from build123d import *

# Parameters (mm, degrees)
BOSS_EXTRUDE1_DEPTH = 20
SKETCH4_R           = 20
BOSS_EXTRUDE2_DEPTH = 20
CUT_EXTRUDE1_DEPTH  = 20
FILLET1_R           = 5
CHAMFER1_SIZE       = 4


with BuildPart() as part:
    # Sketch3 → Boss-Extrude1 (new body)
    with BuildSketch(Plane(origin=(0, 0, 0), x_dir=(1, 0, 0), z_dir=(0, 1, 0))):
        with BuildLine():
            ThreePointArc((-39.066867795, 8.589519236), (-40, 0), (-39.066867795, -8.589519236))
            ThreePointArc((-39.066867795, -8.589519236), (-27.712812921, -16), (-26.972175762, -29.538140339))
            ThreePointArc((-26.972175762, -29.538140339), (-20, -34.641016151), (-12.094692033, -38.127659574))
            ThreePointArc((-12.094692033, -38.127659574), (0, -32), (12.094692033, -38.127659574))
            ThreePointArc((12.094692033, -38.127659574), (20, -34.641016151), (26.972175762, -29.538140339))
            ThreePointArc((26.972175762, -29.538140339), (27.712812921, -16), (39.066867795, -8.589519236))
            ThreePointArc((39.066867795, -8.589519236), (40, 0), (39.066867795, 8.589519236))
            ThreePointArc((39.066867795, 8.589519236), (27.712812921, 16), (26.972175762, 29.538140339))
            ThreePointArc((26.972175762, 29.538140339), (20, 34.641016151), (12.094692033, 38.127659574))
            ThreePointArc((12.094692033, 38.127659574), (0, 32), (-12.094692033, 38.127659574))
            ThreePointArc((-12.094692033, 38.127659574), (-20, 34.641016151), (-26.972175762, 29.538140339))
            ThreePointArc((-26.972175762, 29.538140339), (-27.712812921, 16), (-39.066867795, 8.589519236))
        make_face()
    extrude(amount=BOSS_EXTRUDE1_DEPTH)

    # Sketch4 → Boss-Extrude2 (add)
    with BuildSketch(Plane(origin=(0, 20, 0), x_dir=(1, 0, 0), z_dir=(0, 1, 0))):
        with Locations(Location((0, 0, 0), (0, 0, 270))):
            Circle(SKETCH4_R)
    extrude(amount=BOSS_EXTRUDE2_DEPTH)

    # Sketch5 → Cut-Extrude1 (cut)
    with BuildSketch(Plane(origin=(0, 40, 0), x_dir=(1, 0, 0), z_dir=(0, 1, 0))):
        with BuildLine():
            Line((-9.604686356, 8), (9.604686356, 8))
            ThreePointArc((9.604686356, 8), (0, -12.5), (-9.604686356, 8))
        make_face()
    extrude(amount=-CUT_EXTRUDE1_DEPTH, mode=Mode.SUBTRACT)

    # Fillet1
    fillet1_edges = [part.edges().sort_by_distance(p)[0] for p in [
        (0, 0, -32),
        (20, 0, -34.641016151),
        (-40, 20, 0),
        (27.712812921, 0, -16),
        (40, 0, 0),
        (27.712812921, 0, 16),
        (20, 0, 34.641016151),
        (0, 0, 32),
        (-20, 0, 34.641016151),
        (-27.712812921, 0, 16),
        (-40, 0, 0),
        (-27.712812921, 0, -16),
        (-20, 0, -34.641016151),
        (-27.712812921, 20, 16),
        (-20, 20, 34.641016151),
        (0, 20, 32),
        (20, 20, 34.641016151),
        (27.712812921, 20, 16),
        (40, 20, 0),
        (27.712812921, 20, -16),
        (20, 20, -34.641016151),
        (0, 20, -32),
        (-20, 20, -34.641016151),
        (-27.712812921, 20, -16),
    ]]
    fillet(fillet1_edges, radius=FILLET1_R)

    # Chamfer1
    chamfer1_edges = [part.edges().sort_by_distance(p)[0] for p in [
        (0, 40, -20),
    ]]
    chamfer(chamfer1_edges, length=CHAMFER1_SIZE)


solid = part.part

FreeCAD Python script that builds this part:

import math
import FreeCAD as App
import Part
import Sketcher
from FreeCAD import Vector


def edges_at(feature, points):
    """Names of the edges that pass closest to the given points."""
    edges = feature.Shape.Edges
    near = lambda p: min(range(len(edges)), key=lambda i: edges[i].distToShape(Part.Vertex(*p))[0])
    return sorted({f"Edge{near(p) + 1}" for p in points})

doc = App.newDocument("Part")
params = doc.addObject("Spreadsheet::Sheet", "Params")
for row, (alias, value) in enumerate([
    ("sketch1_radius", "40 mm"),
    ("sketch1_radius2", "15 mm"),
    ("pad1_length", "20 mm"),
    ("sketch2_diameter", "40 mm"),
    ("pad2_length", "20 mm"),
    ("sketch3_radius", "12.5 mm"),
    ("pocket1_length", "20 mm"),
    ("fillet_radius", "5 mm"),
    ("chamfer_size", "4 mm"),
], start=1):
    params.set(f"A{row}", alias)
    params.set(f"B{row}", "=" + value)
    params.setAlias(f"B{row}", alias)

body = doc.addObject("PartDesign::Body", "Body")

sketch1 = body.newObject("Sketcher::SketchObject", "Sketch")
sketch1.AttachmentSupport = (doc.getObject("XZ_Plane"), [""])
sketch1.MapMode = "FlatFace"
sketch1.addGeometry([
    Part.ArcOfCircle(Part.Circle(Vector(0, 0, 0), Vector(0, 0, 1), 40), math.radians(167.599844), math.radians(192.400156)),
    Part.ArcOfCircle(Part.Circle(Vector(-40.703194, 23.5, 0), Vector(0, 0, 1), 15), math.radians(-83.737231), math.radians(23.737231)),
    Part.ArcOfCircle(Part.Circle(Vector(0, 0, 0), Vector(0, 0, 1), 40), math.radians(107.599844), math.radians(132.400156)),
    Part.ArcOfCircle(Part.Circle(Vector(0, 47, 0), Vector(0, 0, 1), 15), math.radians(-143.737231), math.radians(-36.262769)),
    Part.ArcOfCircle(Part.Circle(Vector(0, 0, 0), Vector(0, 0, 1), 40), math.radians(47.599844), math.radians(72.400156)),
    Part.ArcOfCircle(Part.Circle(Vector(40.703194, 23.5, 0), Vector(0, 0, 1), 15), math.radians(156.262769), math.radians(263.737231)),
    Part.ArcOfCircle(Part.Circle(Vector(0, 0, 0), Vector(0, 0, 1), 40), math.radians(-12.400156), math.radians(12.400156)),
    Part.ArcOfCircle(Part.Circle(Vector(40.703194, -23.5, 0), Vector(0, 0, 1), 15), math.radians(96.262769), math.radians(203.737231)),
    Part.ArcOfCircle(Part.Circle(Vector(0, 0, 0), Vector(0, 0, 1), 40), math.radians(-72.400156), math.radians(-47.599844)),
    Part.ArcOfCircle(Part.Circle(Vector(0, -47, 0), Vector(0, 0, 1), 15), math.radians(36.262769), math.radians(143.737231)),
    Part.ArcOfCircle(Part.Circle(Vector(0, 0, 0), Vector(0, 0, 1), 40), math.radians(-132.400156), math.radians(-107.599844)),
    Part.ArcOfCircle(Part.Circle(Vector(-40.703194, -23.5, 0), Vector(0, 0, 1), 15), math.radians(-23.737231), math.radians(83.737231)),
], False)
sketch1.addConstraint([
    Sketcher.Constraint("Coincident", 0, 1, 1, 1),
    Sketcher.Constraint("Coincident", 1, 2, 2, 2),
    Sketcher.Constraint("Coincident", 2, 1, 3, 1),
    Sketcher.Constraint("Coincident", 3, 2, 4, 2),
    Sketcher.Constraint("Coincident", 4, 1, 5, 1),
    Sketcher.Constraint("Coincident", 5, 2, 6, 2),
    Sketcher.Constraint("Coincident", 6, 1, 7, 1),
    Sketcher.Constraint("Coincident", 7, 2, 8, 2),
    Sketcher.Constraint("Coincident", 8, 1, 9, 1),
    Sketcher.Constraint("Coincident", 9, 2, 10, 2),
    Sketcher.Constraint("Coincident", 10, 1, 11, 1),
    Sketcher.Constraint("Coincident", 11, 2, 0, 2),
    Sketcher.Constraint("Coincident", 0, 3, -1, 1),
    Sketcher.Constraint("Coincident", 2, 3, -1, 1),
    Sketcher.Constraint("Coincident", 4, 3, -1, 1),
    Sketcher.Constraint("Coincident", 6, 3, -1, 1),
    Sketcher.Constraint("Coincident", 8, 3, -1, 1),
    Sketcher.Constraint("Coincident", 10, 3, -1, 1),
    Sketcher.Constraint("Equal", 0, 2),
    Sketcher.Constraint("Equal", 1, 3),
    Sketcher.Constraint("Equal", 2, 4),
    Sketcher.Constraint("Equal", 3, 5),
    Sketcher.Constraint("Equal", 4, 6),
    Sketcher.Constraint("Equal", 5, 7),
    Sketcher.Constraint("Equal", 6, 8),
    Sketcher.Constraint("Equal", 7, 9),
    Sketcher.Constraint("Equal", 8, 10),
    Sketcher.Constraint("Equal", 9, 11),
    Sketcher.Constraint("Symmetric", 1, 3, 7, 3, -1, 1),
    Sketcher.Constraint("Symmetric", 3, 3, 9, 3, -1, 1),
    Sketcher.Constraint("Symmetric", 5, 3, 11, 3, -1, 1),
    Sketcher.Constraint("Symmetric", 1, 3, 5, 3, -2),
    Sketcher.Constraint("PointOnObject", 3, 3, -2),
    Sketcher.Constraint("Radius", 0, 40.0),
    Sketcher.Constraint("Radius", 1, 15.0),
    Sketcher.Constraint("DistanceY", -1, 1, 3, 3, 47.0),
    Sketcher.Constraint("DistanceY", 7, 3, 5, 3, 47.0),
    Sketcher.Constraint("DistanceX", 1, 3, 2, 1, 28.608502),
])
sketch1.setExpression("Constraints[33]", "Params.sketch1_radius")
sketch1.setExpression("Constraints[34]", "Params.sketch1_radius2")
pad1 = body.newObject("PartDesign::Pad", "Pad")
pad1.Profile = sketch1
pad1.setExpression("Length", "Params.pad1_length")
pad1.Reversed = True

sketch2 = body.newObject("Sketcher::SketchObject", "Sketch001")
sketch2.AttachmentSupport = (doc.getObject("XZ_Plane"), [""])
sketch2.MapMode = "FlatFace"
sketch2.AttachmentOffset = App.Placement(Vector(0, 0, -20), App.Rotation())
sketch2.addGeometry(Part.Circle(Vector(0, 0, 0), Vector(0, 0, 1), 20), False)
sketch2.addConstraint([
    Sketcher.Constraint("Coincident", 0, 3, -1, 1),
    Sketcher.Constraint("Diameter", 0, 40.0),
])
sketch2.setExpression("Constraints[1]", "Params.sketch2_diameter")
pad2 = body.newObject("PartDesign::Pad", "Pad001")
pad2.Profile = sketch2
pad2.setExpression("Length", "Params.pad2_length")
pad2.Reversed = True

sketch3 = body.newObject("Sketcher::SketchObject", "Sketch002")
sketch3.AttachmentSupport = (doc.getObject("XZ_Plane"), [""])
sketch3.MapMode = "FlatFace"
sketch3.AttachmentOffset = App.Placement(Vector(0, 0, -40), App.Rotation())
sketch3.addGeometry([
    Part.LineSegment(Vector(9.604686, -8, 0), Vector(-9.604686, -8, 0)),
    Part.ArcOfCircle(Part.Circle(Vector(0, 0, 0), Vector(0, 0, 1), 12.5), math.radians(-39.791819), math.radians(219.791819)),
], False)
sketch3.addConstraint([
    Sketcher.Constraint("Coincident", 0, 1, 1, 1),
    Sketcher.Constraint("Coincident", 1, 2, 0, 2),
    Sketcher.Constraint("Horizontal", 0),
    Sketcher.Constraint("Coincident", 1, 3, -1, 1),
    Sketcher.Constraint("Radius", 1, 12.5),
    Sketcher.Constraint("DistanceY", 0, 1, -1, 1, 8.0),
])
sketch3.setExpression("Constraints[4]", "Params.sketch3_radius")
pocket1 = body.newObject("PartDesign::Pocket", "Pocket")
pocket1.Profile = sketch3
pocket1.setExpression("Length", "Params.pocket1_length")
pocket1.Reversed = True
doc.recompute()

fillet = body.newObject("PartDesign::Fillet", "Fillet")
fillet.Base = (pocket1, edges_at(pocket1, [
    (0, 0, -32),
    (20, 0, -34.641),
    (-40, 20, 0),
    (27.713, 0, -16),
    (40, 0, 0),
    (27.713, 0, 16),
    (20, 0, 34.641),
    (0, 0, 32),
    (-20, 0, 34.641),
    (-27.713, 0, 16),
    (-40, 0, 0),
    (-27.713, 0, -16),
    (-20, 0, -34.641),
    (-27.713, 20, 16),
    (-20, 20, 34.641),
    (0, 20, 32),
    (20, 20, 34.641),
    (27.713, 20, 16),
    (40, 20, 0),
    (27.713, 20, -16),
    (20, 20, -34.641),
    (0, 20, -32),
    (-20, 20, -34.641),
    (-27.713, 20, -16),
]))
fillet.setExpression("Radius", "Params.fillet_radius")
doc.recompute()

chamfer = body.newObject("PartDesign::Chamfer", "Chamfer")
chamfer.Base = (fillet, edges_at(fillet, [(0, 40, -20)]))
chamfer.setExpression("Size", "Params.chamfer_size")

doc.recompute()
